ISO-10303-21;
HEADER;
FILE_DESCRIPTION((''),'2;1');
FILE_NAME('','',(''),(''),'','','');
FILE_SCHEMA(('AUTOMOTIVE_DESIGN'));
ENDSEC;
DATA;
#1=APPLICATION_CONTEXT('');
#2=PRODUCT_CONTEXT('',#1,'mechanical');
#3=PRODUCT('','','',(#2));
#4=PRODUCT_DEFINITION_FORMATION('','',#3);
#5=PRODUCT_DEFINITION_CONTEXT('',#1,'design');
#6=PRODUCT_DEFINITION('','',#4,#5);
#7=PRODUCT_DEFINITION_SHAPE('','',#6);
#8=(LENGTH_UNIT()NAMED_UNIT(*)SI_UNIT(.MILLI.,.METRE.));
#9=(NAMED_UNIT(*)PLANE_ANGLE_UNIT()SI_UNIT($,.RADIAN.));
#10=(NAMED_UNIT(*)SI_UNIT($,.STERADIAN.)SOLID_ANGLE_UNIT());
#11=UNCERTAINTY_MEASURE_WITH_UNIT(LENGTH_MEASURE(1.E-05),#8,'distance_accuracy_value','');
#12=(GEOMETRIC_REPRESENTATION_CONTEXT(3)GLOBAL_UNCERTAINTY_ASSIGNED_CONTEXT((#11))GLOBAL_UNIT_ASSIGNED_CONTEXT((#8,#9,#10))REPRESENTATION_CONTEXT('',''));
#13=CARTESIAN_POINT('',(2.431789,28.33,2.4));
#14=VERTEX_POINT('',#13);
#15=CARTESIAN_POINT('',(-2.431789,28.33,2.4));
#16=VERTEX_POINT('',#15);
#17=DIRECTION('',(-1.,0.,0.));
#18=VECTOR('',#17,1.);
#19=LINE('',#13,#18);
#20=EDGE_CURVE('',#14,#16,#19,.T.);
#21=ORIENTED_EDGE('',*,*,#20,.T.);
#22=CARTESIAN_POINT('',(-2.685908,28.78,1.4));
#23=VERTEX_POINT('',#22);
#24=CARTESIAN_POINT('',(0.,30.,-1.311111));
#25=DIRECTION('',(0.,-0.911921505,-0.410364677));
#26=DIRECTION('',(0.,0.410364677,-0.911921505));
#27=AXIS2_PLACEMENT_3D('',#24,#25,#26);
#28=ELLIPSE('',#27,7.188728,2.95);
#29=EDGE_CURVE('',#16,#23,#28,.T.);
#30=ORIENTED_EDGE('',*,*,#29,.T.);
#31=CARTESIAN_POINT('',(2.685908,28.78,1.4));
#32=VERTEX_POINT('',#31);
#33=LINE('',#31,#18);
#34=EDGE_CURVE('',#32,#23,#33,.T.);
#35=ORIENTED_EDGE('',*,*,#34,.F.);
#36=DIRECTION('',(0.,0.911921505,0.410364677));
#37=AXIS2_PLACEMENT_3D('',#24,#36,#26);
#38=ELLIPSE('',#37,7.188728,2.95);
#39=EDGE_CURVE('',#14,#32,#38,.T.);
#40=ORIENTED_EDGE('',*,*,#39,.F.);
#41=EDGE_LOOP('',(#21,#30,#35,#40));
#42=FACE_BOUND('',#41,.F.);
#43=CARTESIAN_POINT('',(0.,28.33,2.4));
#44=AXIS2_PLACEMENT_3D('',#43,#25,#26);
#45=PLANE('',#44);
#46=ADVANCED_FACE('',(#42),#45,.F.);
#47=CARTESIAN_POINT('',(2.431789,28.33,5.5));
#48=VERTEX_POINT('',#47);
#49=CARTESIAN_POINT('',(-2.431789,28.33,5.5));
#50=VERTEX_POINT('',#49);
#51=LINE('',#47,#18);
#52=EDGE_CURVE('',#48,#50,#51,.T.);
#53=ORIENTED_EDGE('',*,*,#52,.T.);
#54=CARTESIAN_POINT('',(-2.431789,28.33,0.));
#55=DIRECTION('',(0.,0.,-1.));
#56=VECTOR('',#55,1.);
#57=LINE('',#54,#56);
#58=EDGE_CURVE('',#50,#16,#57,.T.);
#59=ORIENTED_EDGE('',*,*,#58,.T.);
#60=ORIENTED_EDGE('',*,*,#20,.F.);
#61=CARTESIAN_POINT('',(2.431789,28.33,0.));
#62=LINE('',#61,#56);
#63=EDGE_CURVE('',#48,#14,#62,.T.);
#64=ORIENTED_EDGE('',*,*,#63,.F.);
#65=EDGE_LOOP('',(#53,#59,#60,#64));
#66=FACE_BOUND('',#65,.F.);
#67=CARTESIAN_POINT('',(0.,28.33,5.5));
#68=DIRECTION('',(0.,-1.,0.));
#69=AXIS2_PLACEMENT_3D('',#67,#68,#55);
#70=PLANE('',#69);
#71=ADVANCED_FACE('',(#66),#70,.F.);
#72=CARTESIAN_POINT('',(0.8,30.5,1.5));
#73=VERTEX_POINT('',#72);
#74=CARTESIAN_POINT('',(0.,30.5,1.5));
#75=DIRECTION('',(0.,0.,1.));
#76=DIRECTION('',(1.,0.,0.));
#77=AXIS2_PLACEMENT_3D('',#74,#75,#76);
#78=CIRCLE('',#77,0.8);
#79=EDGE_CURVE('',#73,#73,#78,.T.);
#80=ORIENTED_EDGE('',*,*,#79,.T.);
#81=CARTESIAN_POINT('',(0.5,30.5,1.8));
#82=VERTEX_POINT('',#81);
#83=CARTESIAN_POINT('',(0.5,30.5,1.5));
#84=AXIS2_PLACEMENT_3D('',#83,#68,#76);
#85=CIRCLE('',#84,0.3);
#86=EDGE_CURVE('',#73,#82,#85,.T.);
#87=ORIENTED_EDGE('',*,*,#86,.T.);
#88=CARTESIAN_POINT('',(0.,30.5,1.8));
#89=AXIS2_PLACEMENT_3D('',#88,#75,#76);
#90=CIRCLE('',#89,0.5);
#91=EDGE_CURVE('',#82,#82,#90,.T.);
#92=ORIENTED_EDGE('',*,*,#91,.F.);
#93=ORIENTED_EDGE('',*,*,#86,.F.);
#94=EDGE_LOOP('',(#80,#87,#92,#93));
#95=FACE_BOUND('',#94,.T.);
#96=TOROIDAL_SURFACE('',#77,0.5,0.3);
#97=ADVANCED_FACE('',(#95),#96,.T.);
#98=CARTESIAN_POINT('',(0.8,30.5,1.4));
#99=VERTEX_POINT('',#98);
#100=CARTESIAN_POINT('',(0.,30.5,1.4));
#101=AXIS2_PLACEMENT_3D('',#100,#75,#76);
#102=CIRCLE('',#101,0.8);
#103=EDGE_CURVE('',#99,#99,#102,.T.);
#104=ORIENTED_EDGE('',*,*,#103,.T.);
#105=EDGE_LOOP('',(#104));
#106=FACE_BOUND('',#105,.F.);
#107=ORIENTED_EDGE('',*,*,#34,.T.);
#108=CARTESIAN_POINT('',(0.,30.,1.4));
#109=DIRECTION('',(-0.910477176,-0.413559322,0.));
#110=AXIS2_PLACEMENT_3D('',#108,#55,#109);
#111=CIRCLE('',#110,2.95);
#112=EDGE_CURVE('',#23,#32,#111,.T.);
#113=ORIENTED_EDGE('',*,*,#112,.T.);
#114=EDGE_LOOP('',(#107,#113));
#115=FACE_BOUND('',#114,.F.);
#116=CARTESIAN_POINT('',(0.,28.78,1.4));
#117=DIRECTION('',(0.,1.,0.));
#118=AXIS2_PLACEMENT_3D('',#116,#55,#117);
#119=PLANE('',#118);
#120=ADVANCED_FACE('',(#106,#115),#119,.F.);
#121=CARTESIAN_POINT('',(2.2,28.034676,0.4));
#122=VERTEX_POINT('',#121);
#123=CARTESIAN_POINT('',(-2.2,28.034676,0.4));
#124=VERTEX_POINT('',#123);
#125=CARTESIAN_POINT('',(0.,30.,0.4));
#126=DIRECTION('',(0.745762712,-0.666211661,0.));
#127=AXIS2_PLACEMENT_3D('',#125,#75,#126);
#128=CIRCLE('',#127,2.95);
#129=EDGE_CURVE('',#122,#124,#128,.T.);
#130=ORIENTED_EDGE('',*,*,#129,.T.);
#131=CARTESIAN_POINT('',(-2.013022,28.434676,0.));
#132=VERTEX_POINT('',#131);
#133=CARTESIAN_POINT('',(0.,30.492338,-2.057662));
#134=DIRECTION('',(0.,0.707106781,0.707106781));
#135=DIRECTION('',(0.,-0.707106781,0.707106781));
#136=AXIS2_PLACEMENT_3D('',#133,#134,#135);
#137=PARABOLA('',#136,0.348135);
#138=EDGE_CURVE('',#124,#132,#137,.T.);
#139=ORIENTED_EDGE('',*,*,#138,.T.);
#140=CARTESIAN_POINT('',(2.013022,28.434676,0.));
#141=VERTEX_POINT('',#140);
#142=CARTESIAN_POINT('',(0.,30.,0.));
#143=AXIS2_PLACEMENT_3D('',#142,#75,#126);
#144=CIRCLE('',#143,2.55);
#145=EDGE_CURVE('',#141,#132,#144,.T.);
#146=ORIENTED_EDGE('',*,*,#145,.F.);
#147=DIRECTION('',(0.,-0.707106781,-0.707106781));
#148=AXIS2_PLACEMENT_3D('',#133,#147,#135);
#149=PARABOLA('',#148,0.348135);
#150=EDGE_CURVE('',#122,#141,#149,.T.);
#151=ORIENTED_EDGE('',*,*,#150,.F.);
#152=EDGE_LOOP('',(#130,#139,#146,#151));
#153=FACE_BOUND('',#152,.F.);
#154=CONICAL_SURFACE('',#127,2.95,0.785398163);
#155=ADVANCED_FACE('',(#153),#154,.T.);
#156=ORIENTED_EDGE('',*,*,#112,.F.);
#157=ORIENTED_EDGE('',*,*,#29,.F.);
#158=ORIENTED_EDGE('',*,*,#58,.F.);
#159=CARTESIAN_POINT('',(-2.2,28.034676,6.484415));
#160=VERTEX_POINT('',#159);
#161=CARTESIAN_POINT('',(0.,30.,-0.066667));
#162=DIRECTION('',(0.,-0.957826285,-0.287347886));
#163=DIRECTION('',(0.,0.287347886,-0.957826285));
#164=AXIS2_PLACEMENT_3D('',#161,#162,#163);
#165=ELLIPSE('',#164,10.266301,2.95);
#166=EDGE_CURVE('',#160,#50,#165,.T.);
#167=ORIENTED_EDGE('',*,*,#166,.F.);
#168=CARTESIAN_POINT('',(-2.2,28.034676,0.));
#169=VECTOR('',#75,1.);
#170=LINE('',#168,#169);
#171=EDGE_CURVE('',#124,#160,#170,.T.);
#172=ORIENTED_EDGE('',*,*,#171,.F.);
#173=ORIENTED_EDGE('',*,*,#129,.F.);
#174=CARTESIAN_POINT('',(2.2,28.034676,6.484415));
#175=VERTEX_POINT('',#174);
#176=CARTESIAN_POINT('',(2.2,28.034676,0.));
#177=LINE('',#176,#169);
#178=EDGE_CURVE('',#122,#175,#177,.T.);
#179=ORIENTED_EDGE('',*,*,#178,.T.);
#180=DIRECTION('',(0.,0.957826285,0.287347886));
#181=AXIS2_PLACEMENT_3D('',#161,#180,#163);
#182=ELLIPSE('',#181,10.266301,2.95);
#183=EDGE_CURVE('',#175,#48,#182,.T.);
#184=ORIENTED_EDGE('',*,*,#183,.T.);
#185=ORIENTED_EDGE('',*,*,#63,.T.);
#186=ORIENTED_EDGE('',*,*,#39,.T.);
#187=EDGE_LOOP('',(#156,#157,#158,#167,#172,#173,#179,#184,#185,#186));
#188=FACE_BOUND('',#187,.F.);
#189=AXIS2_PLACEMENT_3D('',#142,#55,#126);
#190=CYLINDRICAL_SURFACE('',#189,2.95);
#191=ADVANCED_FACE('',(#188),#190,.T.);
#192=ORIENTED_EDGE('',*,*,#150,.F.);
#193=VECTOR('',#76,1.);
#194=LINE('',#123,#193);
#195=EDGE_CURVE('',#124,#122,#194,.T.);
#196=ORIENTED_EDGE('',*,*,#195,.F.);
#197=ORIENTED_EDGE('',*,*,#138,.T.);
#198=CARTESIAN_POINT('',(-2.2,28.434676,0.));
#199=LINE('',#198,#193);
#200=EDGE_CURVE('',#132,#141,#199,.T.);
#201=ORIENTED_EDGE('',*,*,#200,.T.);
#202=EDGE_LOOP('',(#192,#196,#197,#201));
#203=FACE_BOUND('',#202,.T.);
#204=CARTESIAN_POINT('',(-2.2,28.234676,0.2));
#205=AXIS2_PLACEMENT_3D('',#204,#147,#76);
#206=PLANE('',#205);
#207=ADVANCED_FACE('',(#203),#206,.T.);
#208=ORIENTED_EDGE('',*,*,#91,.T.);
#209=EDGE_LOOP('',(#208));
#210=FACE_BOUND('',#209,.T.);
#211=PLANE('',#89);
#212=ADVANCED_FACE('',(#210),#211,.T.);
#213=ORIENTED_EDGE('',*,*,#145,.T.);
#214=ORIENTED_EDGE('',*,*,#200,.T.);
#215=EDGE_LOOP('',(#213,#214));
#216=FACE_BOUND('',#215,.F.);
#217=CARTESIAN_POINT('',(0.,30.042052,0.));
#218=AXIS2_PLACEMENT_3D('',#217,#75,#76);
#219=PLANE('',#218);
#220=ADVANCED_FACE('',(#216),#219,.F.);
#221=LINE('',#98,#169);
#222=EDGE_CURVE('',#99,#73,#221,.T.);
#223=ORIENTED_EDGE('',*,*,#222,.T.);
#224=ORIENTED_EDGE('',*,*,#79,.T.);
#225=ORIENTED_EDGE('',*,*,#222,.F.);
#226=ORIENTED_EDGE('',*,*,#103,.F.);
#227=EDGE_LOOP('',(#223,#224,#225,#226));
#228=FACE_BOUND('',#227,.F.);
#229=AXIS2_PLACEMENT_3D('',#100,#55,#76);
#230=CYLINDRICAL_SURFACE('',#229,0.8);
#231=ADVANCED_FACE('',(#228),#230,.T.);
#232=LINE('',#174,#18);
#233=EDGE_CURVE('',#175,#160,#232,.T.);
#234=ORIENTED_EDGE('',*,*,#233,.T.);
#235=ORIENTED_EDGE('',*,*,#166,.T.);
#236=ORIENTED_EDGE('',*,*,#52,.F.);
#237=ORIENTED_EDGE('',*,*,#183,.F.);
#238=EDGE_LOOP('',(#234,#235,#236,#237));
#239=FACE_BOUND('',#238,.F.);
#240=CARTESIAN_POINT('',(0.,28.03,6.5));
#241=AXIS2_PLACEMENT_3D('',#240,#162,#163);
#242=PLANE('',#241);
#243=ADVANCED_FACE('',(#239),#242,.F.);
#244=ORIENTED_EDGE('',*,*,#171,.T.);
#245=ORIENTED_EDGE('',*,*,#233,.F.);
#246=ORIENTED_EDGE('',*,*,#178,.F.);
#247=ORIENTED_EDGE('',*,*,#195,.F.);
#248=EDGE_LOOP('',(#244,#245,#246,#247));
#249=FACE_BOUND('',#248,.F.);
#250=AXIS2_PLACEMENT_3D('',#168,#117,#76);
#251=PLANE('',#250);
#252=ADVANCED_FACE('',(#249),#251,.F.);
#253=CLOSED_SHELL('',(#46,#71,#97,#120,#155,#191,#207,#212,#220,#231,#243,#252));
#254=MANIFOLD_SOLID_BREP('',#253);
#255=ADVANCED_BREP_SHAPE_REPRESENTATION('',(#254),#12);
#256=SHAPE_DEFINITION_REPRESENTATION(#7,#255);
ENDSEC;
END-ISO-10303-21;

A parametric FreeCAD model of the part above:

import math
import FreeCAD as App
import Part
import Sketcher

V = App.Vector
Q = App.Units.Quantity


def edges_at(feature, points):
    """Names of the edges that pass closest to the given points."""
    edges = feature.Shape.Edges
    near = lambda p: min(range(len(edges)), key=lambda i: edges[i].distToShape(Part.Vertex(*p))[0])
    return sorted({f"Edge{near(p) + 1}" for p in points})


def add_polygon(sketch, points):
    """Adds a closed chain of lines whose ends are joined by coincident constraints."""
    first, n = sketch.GeometryCount, len(points)
    for a, b in zip(points, points[1:] + points[:1]):
        sketch.addGeometry(Part.LineSegment(App.Vector(*a, 0), App.Vector(*b, 0)), False)
    for i in range(n):
        sketch.addConstraint(Sketcher.Constraint("Coincident", first + i, 2, first + (i + 1) % n, 1))

doc = App.newDocument("Part")
body = doc.addObject("PartDesign::Body", "Body")

# Sketch on XY plane
sketch1 = body.newObject("Sketcher::SketchObject", "Sketch")
sketch1.AttachmentSupport = (doc.getObject("XY_Plane"), [""])
sketch1.MapMode = "FlatFace"
sketch1.addGeometry(Part.ArcOfCircle(Part.Circle(V(0, 0, 0), V(0, 0, 1), 3), math.radians(-42), math.radians(222)), False)
sketch1.addGeometry(Part.LineSegment(V(-2.2, -2, 0), V(2.2, -2, 0)), False)
sketch1.addConstraint(Sketcher.Constraint("Coincident", 0, 1, 1, 2))
sketch1.addConstraint(Sketcher.Constraint("Coincident", 1, 1, 0, 2))
sketch1.addConstraint(Sketcher.Constraint("Horizontal", 1))
sketch1.addConstraint(Sketcher.Constraint("Coincident", 0, 3, -1, 1))
sketch1.addConstraint(Sketcher.Constraint("Radius", 0, Q("2.95 mm")))
sketch1.addConstraint(Sketcher.Constraint("DistanceX", 1, 1, 1, 2, Q("4.4 mm")))
pad1 = body.newObject("PartDesign::Pad", "Pad")
pad1.Profile = sketch1
pad1.Length = 6.5

# Sketch on YZ plane
sketch2 = body.newObject("Sketcher::SketchObject", "Sketch001")
sketch2.AttachmentSupport = (doc.getObject("YZ_Plane"), [""])
sketch2.MapMode = "FlatFace"
add_polygon(sketch2, [(-2, 6.5), (-1.7, 5.5), (-1.7, 2.4), (-1.2, 1.4), (4, 1.4), (4, 6.5)])  # lines 0-5
sketch2.addConstraint(Sketcher.Constraint("Vertical", 1))
sketch2.addConstraint(Sketcher.Constraint("Horizontal", 3))
sketch2.addConstraint(Sketcher.Constraint("Vertical", 4))
sketch2.addConstraint(Sketcher.Constraint("Horizontal", 5))
sketch2.addConstraint(Sketcher.Constraint("DistanceY", 1, 2, 1, 1, Q("3.1 mm")))
sketch2.addConstraint(Sketcher.Constraint("DistanceY", 4, 1, 4, 2, Q("5.1 mm")))
sketch2.addConstraint(Sketcher.Constraint("DistanceX", -1, 1, 3, 2, Q("4 mm")))
sketch2.addConstraint(Sketcher.Constraint("DistanceY", 2, 2, 1, 2, Q("1 mm")))
sketch2.addConstraint(Sketcher.Constraint("DistanceX", 3, 1, 3, 2, Q("5.22 mm")))
sketch2.addConstraint(Sketcher.Constraint("DistanceX", 5, 2, 5, 1, Q("5.97 mm")))
sketch2.addConstraint(Sketcher.Constraint("DistanceY", -1, 1, 0, 2, Q("5.5 mm")))
sketch2.addConstraint(Sketcher.Constraint("DistanceX", 5, 2, 0, 2, Q("0.3 mm")))
pocket1 = body.newObject("PartDesign::Pocket", "Pocket")
pocket1.Profile = sketch2
pocket1.Type = "ThroughAll"
pocket1.Midplane = True

# Sketch on XY plane
sketch3 = body.newObject("Sketcher::SketchObject", "Sketch002")
sketch3.AttachmentSupport = (doc.getObject("XY_Plane"), [""])
sketch3.MapMode = "FlatFace"
sketch3.AttachmentOffset = App.Placement(V(0, 0, 1.4), App.Rotation())
sketch3.addGeometry(Part.Circle(V(0, 0.5, 0), V(0, 0, 1), 0.8), False)
sketch3.addConstraint(Sketcher.Constraint("PointOnObject", 0, 3, -2))
sketch3.addConstraint(Sketcher.Constraint("Diameter", 0, Q("1.6 mm")))
sketch3.addConstraint(Sketcher.Constraint("DistanceY", -1, 1, 0, 3, Q("0.5 mm")))
pad2 = body.newObject("PartDesign::Pad", "Pad001")
pad2.Profile = sketch3
pad2.Length = 0.4
doc.recompute()

fillet = body.newObject("PartDesign::Fillet", "Fillet")
fillet.Base = (pad2, edges_at(pad2, [(-0.8, 0.5, 1.8)]))
fillet.Radius = 0.3
doc.recompute()

chamfer = body.newObject("PartDesign::Chamfer", "Chamfer")
chamfer.Base = (fillet, edges_at(fillet, [(0, 2.95, 0), (0, -1.965, 0)]))
chamfer.Size = 0.4
body2 = doc.addObject("PartDesign::Body", "Body001")
doc.recompute()

body.Placement = App.Placement(V(0, 30, 0), App.Rotation(V(0, 0, 1), 0))
boolean = body2.newObject("PartDesign::Boolean", "Boolean")
boolean.Type = "Fuse"
boolean.addObjects([body])

doc.recompute()
